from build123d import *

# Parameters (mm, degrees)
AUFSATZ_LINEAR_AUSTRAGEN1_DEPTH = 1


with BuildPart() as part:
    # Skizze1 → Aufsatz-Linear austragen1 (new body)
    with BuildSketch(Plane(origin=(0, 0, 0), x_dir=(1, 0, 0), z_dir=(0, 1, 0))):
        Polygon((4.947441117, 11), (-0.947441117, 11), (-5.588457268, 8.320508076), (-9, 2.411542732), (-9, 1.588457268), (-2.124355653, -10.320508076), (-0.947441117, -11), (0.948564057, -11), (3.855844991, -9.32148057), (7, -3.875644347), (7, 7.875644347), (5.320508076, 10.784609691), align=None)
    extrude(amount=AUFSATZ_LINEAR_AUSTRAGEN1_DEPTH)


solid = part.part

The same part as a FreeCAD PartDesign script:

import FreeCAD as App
import Part
import Sketcher

V = App.Vector
Q = App.Units.Quantity

doc = App.newDocument("Part")
params = doc.addObject("Spreadsheet::Sheet", "Params")
for row, (alias, value) in enumerate([
    ("pad1_length", "1 mm"),
], start=1):
    params.set(f"A{row}", alias)
    params.set(f"B{row}", "=" + value)
    params.setAlias(f"B{row}", alias)

body = doc.addObject("PartDesign::Body", "Body")

sketch1 = body.newObject("Sketcher::SketchObject", "Sketch")
sketch1.AttachmentSupport = (doc.getObject("XZ_Plane"), [""])
sketch1.MapMode = "FlatFace"
sketch1.addGeometry([
    Part.LineSegment(V(4.947441, -11, 0), V(-0.947441, -11, 0)),
    Part.LineSegment(V(-0.947441, -11, 0), V(-5.588457, -8.320508, 0)),
    Part.LineSegment(V(-5.588457, -8.320508, 0), V(-9, -2.411543, 0)),
    Part.LineSegment(V(-9, -2.411543, 0), V(-9, -1.588457, 0)),
    Part.LineSegment(V(-9, -1.588457, 0), V(-2.124356, 10.320508, 0)),
    Part.LineSegment(V(-2.124356, 10.320508, 0), V(-0.947441, 11, 0)),
    Part.LineSegment(V(-0.947441, 11, 0), V(0.948564, 11, 0)),
    Part.LineSegment(V(0.948564, 11, 0), V(3.855845, 9.321481, 0)),
    Part.LineSegment(V(3.855845, 9.321481, 0), V(7, 3.875644, 0)),
    Part.LineSegment(V(7, 3.875644, 0), V(7, -7.875644, 0)),
    Part.LineSegment(V(7, -7.875644, 0), V(5.320508, -10.78461, 0)),
    Part.LineSegment(V(5.320508, -10.78461, 0), V(4.947441, -11, 0)),
], False)
sketch1.addConstraint([
    Sketcher.Constraint("Coincident", 0, 2, 1, 1),
    Sketcher.Constraint("Coincident", 1, 2, 2, 1),
    Sketcher.Constraint("Coincident", 2, 2, 3, 1),
    Sketcher.Constraint("Coincident", 3, 2, 4, 1),
    Sketcher.Constraint("Coincident", 4, 2, 5, 1),
    Sketcher.Constraint("Coincident", 5, 2, 6, 1),
    Sketcher.Constraint("Coincident", 6, 2, 7, 1),
    Sketcher.Constraint("Coincident", 7, 2, 8, 1),
    Sketcher.Constraint("Coincident", 8, 2, 9, 1),
    Sketcher.Constraint("Coincident", 9, 2, 10, 1),
    Sketcher.Constraint("Coincident", 10, 2, 11, 1),
    Sketcher.Constraint("Coincident", 11, 2, 0, 1),
    Sketcher.Constraint("Horizontal", 0),
    Sketcher.Constraint("Vertical", 3),
    Sketcher.Constraint("Horizontal", 6),
    Sketcher.Constraint("Vertical", 9),
    Sketcher.Constraint("Symmetric", 0, 2, 5, 2, -1),
    Sketcher.Constraint("Perpendicular", 1, 4),
    Sketcher.Constraint("Perpendicular", 2, 5),
    Sketcher.Constraint("Perpendicular", 4, 7),
    Sketcher.Constraint("Perpendicular", 5, 8),
    Sketcher.Constraint("Perpendicular", 7, 10),
    Sketcher.Constraint("Perpendicular", 8, 11),
    Sketcher.Constraint("Angle", 1, Q("150 deg")),
    Sketcher.Constraint("Angle", 2, Q("120 deg")),
    Sketcher.Constraint("DistanceY", 0, 2, -1, 1, 11.0),
    Sketcher.Constraint("DistanceX", 2, 2, -1, 1, 9.0),
    Sketcher.Constraint("DistanceX", -1, 1, 8, 2, 7.0),
    Sketcher.Constraint("DistanceY", 9, 2, 9, 1, 11.751289),
    Sketcher.Constraint("DistanceX", 1, 2, 4, 2, 3.464102),
    Sketcher.Constraint("DistanceX", 4, 2, 7, 2, 5.980201),
    Sketcher.Constraint("DistanceY", 9, 2, 2, 2, 5.464102),
    Sketcher.Constraint("DistanceY", 10, 2, 1, 2, 2.464102),
    Sketcher.Constraint("DistanceX", 1, 2, 11, 2, 10.535898),
    Sketcher.Constraint("Distance", 4, 13.751289),
])
pad1 = body.newObject("PartDesign::Pad", "Pad")
pad1.Profile = sketch1
pad1.setExpression("Length", "Params.pad1_length")
pad1.Reversed = True

doc.recompute()
